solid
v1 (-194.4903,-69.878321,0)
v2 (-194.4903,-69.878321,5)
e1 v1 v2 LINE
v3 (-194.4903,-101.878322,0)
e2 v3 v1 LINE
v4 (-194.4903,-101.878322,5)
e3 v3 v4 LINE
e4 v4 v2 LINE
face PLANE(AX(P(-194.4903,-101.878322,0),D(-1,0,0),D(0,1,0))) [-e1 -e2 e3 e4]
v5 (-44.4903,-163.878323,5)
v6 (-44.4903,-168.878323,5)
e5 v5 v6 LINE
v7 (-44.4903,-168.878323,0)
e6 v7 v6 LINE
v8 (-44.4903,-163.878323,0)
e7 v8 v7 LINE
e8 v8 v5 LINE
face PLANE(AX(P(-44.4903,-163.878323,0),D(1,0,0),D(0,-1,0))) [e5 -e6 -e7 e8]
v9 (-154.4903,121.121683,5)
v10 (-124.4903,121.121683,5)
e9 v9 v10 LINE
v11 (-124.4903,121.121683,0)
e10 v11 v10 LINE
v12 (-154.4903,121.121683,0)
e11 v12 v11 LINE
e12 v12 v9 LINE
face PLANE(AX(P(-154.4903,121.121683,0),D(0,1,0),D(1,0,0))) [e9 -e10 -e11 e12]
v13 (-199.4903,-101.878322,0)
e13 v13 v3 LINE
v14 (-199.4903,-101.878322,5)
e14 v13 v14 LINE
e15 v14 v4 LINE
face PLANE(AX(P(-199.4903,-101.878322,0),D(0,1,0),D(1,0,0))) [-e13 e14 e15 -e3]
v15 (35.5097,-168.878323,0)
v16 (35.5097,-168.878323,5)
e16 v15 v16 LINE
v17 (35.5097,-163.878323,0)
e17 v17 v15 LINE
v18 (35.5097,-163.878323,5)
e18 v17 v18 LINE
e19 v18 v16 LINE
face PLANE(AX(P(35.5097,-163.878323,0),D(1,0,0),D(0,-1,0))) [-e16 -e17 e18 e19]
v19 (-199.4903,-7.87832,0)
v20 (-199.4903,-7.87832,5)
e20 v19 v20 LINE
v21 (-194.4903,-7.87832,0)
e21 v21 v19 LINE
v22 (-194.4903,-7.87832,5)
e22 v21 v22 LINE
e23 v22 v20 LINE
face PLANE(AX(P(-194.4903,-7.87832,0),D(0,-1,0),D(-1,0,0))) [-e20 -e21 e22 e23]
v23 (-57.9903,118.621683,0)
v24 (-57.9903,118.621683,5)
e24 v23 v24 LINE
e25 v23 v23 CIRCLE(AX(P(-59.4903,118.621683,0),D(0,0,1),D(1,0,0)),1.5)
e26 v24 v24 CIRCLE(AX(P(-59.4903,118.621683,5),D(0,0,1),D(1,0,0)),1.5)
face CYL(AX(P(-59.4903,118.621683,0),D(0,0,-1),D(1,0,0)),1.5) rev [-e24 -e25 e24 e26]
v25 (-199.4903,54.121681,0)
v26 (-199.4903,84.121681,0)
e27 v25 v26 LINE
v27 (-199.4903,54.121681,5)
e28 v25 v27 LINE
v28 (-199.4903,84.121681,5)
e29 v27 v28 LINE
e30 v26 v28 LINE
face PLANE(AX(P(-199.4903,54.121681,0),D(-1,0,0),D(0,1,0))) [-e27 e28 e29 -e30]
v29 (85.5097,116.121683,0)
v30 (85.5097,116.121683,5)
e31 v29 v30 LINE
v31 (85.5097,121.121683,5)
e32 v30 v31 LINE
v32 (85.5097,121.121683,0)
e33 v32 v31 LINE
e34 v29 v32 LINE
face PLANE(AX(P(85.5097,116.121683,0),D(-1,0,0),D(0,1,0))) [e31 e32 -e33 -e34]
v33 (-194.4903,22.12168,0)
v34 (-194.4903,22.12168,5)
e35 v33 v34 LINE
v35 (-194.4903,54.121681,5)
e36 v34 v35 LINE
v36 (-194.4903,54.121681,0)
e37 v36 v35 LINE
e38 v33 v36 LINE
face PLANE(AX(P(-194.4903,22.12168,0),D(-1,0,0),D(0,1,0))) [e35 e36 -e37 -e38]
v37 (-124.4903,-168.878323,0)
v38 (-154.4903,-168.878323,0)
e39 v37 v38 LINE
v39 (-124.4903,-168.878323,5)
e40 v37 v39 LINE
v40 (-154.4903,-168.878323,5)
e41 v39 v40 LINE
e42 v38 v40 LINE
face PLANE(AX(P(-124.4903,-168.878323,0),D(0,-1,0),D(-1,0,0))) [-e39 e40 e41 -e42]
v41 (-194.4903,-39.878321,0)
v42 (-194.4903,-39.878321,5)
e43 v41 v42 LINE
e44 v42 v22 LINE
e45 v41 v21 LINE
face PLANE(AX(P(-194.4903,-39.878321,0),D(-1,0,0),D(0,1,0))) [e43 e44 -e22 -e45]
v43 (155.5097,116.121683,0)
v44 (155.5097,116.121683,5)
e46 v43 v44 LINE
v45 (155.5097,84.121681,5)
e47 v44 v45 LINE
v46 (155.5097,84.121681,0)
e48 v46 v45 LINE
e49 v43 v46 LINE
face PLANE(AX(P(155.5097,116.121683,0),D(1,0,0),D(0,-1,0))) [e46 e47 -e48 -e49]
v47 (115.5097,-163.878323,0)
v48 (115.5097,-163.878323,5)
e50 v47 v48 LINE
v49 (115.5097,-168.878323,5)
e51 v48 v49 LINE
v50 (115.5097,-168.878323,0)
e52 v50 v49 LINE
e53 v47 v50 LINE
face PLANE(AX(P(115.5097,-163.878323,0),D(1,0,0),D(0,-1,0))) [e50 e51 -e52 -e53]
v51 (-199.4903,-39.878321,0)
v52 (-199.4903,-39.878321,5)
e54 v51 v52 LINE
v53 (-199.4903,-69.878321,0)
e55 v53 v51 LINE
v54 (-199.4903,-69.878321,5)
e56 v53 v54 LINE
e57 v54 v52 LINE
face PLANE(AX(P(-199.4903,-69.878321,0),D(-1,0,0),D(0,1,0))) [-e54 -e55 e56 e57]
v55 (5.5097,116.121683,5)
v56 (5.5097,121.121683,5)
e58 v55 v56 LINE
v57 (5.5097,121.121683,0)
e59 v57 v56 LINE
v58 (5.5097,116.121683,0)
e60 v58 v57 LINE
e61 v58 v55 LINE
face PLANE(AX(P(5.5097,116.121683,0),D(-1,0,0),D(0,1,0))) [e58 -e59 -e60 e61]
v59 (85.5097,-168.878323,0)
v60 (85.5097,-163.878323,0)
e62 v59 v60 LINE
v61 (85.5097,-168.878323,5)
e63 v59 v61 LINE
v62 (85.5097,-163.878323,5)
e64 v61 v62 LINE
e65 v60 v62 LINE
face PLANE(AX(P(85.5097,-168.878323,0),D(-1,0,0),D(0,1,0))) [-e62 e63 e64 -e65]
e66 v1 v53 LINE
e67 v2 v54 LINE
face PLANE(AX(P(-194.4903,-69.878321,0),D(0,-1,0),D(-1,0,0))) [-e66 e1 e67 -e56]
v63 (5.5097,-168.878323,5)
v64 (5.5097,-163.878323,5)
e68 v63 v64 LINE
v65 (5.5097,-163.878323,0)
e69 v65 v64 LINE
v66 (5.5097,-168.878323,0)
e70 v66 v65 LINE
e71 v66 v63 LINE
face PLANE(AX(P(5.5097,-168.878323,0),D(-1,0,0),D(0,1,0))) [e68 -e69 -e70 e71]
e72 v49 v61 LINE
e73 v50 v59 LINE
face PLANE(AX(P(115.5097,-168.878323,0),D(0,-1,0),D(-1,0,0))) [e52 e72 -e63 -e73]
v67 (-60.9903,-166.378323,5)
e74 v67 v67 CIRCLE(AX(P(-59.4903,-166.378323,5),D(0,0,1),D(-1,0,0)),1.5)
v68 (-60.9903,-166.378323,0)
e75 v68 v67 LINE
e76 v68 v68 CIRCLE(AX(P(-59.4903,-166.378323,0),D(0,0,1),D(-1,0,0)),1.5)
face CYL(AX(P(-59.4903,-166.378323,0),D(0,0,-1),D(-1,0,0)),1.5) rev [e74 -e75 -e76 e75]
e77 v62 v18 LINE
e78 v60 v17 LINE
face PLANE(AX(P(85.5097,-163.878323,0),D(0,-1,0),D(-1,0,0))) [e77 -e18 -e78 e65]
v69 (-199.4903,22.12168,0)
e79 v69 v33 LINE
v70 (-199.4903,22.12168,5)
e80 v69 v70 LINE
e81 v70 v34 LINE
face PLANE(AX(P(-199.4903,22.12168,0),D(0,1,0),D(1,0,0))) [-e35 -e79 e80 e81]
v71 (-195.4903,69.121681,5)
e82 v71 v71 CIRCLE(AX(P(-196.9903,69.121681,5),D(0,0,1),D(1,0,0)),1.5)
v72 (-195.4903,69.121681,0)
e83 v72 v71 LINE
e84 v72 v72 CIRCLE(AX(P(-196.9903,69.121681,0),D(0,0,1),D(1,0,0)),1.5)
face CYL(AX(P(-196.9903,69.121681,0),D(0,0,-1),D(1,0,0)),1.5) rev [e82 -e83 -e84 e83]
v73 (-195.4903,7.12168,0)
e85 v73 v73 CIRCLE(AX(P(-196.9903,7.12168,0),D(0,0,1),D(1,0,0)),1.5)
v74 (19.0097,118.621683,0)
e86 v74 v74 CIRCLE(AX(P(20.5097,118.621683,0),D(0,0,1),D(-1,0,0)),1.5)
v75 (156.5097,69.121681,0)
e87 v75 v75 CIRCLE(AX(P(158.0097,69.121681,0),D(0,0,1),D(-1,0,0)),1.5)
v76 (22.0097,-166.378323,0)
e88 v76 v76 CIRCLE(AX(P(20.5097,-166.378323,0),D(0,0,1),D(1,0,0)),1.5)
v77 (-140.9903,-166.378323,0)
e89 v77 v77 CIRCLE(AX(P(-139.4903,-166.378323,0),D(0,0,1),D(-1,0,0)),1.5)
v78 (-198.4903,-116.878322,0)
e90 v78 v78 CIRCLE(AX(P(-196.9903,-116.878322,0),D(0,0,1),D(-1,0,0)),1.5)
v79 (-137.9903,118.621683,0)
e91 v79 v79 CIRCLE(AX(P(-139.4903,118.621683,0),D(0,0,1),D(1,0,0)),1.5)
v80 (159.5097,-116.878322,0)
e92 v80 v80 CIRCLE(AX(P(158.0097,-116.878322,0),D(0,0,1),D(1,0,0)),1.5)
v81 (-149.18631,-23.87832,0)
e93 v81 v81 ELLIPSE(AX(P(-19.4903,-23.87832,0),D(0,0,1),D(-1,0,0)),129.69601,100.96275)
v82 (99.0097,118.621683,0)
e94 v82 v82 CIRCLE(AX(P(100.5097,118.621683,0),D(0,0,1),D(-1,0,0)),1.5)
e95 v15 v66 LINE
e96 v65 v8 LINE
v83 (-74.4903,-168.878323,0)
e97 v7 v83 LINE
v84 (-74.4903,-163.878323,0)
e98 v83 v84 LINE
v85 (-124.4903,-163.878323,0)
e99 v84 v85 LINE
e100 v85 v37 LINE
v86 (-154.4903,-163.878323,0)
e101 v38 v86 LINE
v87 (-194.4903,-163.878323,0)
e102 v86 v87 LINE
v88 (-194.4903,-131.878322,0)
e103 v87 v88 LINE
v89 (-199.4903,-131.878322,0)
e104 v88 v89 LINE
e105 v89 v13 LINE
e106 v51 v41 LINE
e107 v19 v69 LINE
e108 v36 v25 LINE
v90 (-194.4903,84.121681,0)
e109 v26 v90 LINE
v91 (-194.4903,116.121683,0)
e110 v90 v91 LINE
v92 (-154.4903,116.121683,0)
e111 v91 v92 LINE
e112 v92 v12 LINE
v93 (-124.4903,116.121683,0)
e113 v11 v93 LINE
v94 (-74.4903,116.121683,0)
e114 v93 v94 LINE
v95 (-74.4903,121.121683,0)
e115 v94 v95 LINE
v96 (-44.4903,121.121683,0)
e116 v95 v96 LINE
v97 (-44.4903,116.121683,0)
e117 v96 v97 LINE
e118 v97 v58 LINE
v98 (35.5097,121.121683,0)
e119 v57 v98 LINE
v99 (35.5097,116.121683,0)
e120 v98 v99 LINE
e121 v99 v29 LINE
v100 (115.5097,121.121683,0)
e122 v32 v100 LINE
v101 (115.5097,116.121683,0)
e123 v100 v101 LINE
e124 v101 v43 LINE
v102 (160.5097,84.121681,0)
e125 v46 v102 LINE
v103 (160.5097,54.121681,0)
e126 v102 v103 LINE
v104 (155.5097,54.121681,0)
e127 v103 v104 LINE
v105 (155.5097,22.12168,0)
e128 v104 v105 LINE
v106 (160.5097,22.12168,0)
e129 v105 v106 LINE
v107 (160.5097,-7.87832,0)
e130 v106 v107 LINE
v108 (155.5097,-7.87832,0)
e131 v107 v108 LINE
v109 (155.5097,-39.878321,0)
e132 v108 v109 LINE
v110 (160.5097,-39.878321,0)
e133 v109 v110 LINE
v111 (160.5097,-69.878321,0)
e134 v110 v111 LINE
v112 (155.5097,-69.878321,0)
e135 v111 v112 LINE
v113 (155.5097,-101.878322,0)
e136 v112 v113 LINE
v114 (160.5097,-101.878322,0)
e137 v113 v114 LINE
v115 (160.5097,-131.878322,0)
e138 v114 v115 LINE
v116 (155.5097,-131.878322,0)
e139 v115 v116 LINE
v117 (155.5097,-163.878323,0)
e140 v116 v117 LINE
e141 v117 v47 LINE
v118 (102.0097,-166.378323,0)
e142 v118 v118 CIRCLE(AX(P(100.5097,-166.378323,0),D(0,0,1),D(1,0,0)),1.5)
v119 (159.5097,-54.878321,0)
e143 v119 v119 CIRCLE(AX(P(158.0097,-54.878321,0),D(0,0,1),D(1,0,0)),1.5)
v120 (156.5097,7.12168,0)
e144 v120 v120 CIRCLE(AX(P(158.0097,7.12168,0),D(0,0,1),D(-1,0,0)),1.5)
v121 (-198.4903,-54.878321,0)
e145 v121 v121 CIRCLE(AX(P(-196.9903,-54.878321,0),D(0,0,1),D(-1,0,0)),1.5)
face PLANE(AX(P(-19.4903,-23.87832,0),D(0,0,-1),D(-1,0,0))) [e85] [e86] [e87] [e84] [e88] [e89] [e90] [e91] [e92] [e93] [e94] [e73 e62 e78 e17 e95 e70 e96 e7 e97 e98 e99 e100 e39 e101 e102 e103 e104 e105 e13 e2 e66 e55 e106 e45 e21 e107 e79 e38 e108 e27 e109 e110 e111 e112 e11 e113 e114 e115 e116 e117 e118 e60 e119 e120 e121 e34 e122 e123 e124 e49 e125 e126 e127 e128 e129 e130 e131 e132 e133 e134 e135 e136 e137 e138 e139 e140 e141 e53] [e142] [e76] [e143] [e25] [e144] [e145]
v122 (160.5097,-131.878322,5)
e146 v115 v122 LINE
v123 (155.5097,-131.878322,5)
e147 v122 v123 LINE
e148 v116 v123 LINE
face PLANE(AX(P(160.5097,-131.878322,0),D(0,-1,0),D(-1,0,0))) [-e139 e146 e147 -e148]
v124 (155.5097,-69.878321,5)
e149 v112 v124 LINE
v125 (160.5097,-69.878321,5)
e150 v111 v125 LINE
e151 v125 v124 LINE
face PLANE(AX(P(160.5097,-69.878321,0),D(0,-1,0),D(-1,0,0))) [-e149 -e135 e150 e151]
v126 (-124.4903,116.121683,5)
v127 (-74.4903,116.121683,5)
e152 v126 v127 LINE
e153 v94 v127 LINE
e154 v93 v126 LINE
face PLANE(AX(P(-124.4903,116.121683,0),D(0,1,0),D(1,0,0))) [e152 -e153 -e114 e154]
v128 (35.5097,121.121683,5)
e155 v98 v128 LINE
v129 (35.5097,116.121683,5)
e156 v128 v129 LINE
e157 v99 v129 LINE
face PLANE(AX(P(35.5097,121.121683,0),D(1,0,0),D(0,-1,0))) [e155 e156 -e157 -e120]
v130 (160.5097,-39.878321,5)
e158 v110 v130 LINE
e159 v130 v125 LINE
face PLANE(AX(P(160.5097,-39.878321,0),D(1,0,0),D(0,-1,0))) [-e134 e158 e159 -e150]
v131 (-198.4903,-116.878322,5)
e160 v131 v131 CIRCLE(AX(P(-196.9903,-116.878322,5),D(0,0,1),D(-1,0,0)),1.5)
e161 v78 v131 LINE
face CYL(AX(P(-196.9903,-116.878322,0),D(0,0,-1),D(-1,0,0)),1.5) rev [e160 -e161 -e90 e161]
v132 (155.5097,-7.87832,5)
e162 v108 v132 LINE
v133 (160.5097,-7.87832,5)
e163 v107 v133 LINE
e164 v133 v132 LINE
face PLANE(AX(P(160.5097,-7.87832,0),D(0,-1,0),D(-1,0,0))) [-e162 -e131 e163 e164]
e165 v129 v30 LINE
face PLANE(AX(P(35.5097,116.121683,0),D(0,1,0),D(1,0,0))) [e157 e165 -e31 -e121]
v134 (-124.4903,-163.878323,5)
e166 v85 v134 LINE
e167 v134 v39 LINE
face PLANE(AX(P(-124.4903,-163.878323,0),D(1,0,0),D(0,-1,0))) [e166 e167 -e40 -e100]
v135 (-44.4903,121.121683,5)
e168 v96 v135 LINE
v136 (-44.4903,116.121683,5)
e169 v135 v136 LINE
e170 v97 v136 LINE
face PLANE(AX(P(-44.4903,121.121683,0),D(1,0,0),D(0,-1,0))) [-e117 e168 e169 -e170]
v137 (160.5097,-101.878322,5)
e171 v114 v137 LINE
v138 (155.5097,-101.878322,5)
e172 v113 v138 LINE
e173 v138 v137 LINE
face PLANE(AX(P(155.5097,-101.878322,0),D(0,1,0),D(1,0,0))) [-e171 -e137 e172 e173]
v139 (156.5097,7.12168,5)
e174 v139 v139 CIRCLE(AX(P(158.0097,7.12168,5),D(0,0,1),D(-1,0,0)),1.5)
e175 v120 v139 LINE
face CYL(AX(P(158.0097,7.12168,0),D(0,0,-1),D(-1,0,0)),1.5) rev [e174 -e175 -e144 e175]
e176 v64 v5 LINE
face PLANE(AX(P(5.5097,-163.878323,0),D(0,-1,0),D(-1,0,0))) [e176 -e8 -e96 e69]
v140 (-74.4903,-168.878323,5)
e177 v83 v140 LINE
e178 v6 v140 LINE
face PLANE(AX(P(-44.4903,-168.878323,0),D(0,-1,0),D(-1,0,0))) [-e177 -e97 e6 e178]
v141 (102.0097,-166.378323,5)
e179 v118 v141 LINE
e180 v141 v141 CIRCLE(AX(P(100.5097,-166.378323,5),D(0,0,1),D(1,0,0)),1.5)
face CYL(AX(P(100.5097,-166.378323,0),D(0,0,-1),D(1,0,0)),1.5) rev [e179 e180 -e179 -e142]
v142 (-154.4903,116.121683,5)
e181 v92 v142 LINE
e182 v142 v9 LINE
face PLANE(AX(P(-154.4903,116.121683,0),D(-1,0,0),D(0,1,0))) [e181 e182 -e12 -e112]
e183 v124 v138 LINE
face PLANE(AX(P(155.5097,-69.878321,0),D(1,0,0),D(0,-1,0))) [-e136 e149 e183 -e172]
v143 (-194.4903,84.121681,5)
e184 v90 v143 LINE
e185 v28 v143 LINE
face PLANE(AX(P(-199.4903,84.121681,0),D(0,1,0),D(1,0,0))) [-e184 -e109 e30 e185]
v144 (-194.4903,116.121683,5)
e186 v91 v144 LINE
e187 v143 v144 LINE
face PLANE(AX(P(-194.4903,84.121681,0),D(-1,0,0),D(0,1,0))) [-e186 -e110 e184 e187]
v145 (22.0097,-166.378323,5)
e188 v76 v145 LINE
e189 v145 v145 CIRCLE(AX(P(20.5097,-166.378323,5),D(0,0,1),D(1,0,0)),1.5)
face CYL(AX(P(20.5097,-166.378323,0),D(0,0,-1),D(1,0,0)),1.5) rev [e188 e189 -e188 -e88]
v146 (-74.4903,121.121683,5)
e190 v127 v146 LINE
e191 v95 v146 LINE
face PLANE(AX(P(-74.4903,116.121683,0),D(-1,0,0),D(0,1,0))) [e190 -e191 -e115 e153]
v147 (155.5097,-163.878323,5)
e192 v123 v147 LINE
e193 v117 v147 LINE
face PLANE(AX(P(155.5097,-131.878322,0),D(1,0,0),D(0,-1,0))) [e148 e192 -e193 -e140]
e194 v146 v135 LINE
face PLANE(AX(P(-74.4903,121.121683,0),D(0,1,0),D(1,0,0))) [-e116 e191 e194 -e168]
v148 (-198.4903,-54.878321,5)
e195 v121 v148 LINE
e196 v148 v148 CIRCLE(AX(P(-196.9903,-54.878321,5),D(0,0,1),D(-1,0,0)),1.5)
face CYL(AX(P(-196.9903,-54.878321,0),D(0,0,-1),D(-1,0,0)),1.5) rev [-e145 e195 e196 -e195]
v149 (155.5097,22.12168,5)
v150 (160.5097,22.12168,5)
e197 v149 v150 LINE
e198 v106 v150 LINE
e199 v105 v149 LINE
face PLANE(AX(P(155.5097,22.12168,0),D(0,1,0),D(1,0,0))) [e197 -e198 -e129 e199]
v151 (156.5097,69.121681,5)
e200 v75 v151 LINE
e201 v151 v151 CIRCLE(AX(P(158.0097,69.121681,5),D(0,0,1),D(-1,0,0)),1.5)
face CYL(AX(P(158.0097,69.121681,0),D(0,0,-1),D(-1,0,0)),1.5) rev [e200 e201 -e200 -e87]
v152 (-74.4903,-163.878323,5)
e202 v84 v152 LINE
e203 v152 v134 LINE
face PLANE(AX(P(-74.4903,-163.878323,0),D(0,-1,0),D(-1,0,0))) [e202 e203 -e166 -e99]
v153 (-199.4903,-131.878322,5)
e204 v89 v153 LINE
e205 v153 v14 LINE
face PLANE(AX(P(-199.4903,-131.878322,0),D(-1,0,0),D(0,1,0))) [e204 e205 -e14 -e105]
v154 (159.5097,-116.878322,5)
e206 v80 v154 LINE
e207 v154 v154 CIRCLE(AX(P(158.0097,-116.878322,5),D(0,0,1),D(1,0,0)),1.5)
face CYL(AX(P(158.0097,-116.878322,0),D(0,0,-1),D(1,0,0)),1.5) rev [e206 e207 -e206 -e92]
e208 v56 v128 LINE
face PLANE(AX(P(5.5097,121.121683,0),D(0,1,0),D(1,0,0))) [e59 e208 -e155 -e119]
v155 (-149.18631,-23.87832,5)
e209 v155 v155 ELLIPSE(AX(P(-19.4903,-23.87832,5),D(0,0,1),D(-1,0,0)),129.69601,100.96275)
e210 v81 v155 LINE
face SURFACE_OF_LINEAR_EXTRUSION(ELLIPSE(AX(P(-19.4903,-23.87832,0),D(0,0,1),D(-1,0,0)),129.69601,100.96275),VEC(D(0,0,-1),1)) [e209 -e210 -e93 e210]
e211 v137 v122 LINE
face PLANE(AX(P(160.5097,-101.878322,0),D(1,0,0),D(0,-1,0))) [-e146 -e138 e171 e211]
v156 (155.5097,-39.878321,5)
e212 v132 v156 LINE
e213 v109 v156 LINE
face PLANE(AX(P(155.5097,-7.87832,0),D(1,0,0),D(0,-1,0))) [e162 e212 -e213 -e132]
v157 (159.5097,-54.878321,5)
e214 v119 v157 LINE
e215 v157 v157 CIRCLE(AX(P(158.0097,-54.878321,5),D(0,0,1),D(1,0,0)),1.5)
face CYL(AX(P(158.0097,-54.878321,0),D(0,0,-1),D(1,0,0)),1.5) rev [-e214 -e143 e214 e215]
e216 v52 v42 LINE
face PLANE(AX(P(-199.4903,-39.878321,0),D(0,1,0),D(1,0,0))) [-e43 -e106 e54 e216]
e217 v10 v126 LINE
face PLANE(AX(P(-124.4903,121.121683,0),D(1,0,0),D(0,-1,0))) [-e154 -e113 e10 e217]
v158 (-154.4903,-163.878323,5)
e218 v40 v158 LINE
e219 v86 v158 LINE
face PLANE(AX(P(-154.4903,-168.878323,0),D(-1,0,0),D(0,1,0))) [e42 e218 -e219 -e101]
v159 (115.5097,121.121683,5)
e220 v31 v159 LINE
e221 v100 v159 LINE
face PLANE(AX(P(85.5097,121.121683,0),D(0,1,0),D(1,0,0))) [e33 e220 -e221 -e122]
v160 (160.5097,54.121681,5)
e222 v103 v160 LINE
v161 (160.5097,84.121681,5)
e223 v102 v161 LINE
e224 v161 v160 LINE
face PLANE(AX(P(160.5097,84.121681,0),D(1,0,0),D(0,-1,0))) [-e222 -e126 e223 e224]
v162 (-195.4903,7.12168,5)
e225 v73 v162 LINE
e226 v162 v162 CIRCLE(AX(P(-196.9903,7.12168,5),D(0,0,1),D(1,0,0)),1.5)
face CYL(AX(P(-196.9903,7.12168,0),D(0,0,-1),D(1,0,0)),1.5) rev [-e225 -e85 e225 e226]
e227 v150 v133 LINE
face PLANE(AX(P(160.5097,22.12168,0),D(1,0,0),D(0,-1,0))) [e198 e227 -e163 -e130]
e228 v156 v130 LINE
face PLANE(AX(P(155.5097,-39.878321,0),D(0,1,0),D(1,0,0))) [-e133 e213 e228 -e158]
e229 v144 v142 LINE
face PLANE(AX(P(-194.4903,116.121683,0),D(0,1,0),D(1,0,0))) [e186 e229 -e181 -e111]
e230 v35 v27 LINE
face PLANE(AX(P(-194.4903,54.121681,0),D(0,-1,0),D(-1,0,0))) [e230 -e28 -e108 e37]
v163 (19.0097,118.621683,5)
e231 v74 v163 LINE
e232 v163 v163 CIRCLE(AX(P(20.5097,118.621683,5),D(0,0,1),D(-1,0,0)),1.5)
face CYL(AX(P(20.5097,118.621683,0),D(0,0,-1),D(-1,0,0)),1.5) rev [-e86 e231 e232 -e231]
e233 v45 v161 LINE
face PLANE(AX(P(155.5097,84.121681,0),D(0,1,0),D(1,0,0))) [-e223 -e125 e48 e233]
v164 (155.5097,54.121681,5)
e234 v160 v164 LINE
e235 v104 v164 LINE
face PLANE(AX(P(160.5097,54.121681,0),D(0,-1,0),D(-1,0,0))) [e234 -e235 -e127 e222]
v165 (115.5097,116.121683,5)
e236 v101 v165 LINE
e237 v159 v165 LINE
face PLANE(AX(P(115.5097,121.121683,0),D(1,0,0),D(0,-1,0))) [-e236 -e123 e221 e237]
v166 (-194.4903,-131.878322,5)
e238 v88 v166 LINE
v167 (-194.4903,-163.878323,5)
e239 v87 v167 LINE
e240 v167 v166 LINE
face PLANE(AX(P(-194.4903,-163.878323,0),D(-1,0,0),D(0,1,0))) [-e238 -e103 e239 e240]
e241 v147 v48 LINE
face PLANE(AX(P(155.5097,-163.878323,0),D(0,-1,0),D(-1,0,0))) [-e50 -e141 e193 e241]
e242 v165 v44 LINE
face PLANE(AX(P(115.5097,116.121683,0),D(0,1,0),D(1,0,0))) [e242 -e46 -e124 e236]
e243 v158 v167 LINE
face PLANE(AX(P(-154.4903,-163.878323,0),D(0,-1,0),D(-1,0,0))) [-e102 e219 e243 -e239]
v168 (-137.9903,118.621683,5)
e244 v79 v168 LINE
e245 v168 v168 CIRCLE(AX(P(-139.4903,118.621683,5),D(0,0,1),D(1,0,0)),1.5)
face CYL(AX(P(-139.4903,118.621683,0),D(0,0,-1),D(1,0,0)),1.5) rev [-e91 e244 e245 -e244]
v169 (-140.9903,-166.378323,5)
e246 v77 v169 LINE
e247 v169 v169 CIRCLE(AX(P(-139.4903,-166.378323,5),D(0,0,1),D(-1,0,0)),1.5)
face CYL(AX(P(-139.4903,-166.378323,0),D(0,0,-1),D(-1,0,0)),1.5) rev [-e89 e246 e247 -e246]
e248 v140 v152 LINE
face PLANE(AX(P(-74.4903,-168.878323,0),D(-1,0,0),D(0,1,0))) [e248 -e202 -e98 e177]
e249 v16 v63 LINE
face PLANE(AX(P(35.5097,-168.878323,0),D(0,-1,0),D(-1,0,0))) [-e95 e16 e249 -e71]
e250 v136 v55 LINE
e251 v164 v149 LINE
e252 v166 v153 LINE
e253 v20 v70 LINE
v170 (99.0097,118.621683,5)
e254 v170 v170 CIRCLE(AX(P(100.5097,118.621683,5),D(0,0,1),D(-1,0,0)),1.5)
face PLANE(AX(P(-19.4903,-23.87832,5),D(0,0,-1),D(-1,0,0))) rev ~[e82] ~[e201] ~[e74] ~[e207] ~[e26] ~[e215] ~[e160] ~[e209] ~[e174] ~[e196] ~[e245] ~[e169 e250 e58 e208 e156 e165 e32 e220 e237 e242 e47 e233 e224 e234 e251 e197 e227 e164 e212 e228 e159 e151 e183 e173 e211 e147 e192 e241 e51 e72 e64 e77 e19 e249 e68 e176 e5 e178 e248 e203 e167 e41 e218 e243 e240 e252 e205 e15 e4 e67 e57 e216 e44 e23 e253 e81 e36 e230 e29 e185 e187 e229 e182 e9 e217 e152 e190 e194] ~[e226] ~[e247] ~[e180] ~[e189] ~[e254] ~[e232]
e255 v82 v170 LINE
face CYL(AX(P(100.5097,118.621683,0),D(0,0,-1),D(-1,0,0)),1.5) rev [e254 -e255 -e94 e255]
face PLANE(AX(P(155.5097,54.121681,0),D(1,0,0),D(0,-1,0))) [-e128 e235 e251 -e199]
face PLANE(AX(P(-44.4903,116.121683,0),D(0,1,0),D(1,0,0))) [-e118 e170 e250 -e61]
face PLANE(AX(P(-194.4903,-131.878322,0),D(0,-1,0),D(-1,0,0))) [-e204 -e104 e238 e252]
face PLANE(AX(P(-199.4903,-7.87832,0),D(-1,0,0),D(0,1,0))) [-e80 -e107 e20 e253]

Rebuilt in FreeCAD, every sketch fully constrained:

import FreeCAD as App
import Part
import Sketcher

V = App.Vector

doc = App.newDocument("Part")
body = doc.addObject("PartDesign::Body", "Body")

sketch1 = body.newObject("Sketcher::SketchObject", "Sketch")
sketch1.AttachmentSupport = (doc.getObject("XY_Plane"), [""])
sketch1.MapMode = "FlatFace"
sketch1.addGeometry(Part.LineSegment(V(115.5097, -163.878323, 0), V(155.5097, -163.878323, 0)), False)
sketch1.addGeometry(Part.LineSegment(V(155.5097, -163.878323, 0), V(155.5097, -131.878322, 0)), False)
sketch1.addGeometry(Part.LineSegment(V(155.5097, -131.878322, 0), V(160.5097, -131.878322, 0)), False)
sketch1.addGeometry(Part.LineSegment(V(160.5097, -131.878322, 0), V(160.5097, -101.878322, 0)), False)
sketch1.addGeometry(Part.LineSegment(V(160.5097, -101.878322, 0), V(155.5097, -101.878322, 0)), False)
sketch1.addGeometry(Part.LineSegment(V(155.5097, -101.878322, 0), V(155.5097, -69.878321, 0)), False)
sketch1.addGeometry(Part.LineSegment(V(155.5097, -69.878321, 0), V(160.5097, -69.878321, 0)), False)
sketch1.addGeometry(Part.LineSegment(V(160.5097, -69.878321, 0), V(160.5097, -39.878321, 0)), False)
sketch1.addGeometry(Part.LineSegment(V(160.5097, -39.878321, 0), V(155.5097, -39.878321, 0)), False)
sketch1.addGeometry(Part.LineSegment(V(155.5097, -39.878321, 0), V(155.5097, -7.87832, 0)), False)
sketch1.addGeometry(Part.LineSegment(V(155.5097, -7.87832, 0), V(160.5097, -7.87832, 0)), False)
sketch1.addGeometry(Part.LineSegment(V(160.5097, -7.87832, 0), V(160.5097, 22.12168, 0)), False)
sketch1.addGeometry(Part.LineSegment(V(160.5097, 22.12168, 0), V(155.5097, 22.12168, 0)), False)
sketch1.addGeometry(Part.LineSegment(V(155.5097, 22.12168, 0), V(155.5097, 54.121681, 0)), False)
sketch1.addGeometry(Part.LineSegment(V(155.5097, 54.121681, 0), V(160.5097, 54.121681, 0)), False)
sketch1.addGeometry(Part.LineSegment(V(160.5097, 54.121681, 0), V(160.5097, 84.121681, 0)), False)
sketch1.addGeometry(Part.LineSegment(V(160.5097, 84.121681, 0), V(155.5097, 84.121681, 0)), False)
sketch1.addGeometry(Part.LineSegment(V(155.5097, 84.121681, 0), V(155.5097, 116.121683, 0)), False)
sketch1.addGeometry(Part.LineSegment(V(155.5097, 116.121683, 0), V(115.5097, 116.121683, 0)), False)
sketch1.addGeometry(Part.LineSegment(V(115.5097, 116.121683, 0), V(115.5097, 121.121683, 0)), False)
sketch1.addGeometry(Part.LineSegment(V(115.5097, 121.121683, 0), V(85.5097, 121.121683, 0)), False)
sketch1.addGeometry(Part.LineSegment(V(85.5097, 121.121683, 0), V(85.5097, 116.121683, 0)), False)
sketch1.addGeometry(Part.LineSegment(V(85.5097, 116.121683, 0), V(35.5097, 116.121683, 0)), False)
sketch1.addGeometry(Part.LineSegment(V(35.5097, 116.121683, 0), V(35.5097, 121.121683, 0)), False)
sketch1.addGeometry(Part.LineSegment(V(35.5097, 121.121683, 0), V(5.5097, 121.121683, 0)), False)
sketch1.addGeometry(Part.LineSegment(V(5.5097, 121.121683, 0), V(5.5097, 116.121683, 0)), False)
sketch1.addGeometry(Part.LineSegment(V(5.5097, 116.121683, 0), V(-44.4903, 116.121683, 0)), False)
sketch1.addGeometry(Part.LineSegment(V(-44.4903, 116.121683, 0), V(-44.4903, 121.121683, 0)), False)
sketch1.addGeometry(Part.LineSegment(V(-44.4903, 121.121683, 0), V(-74.4903, 121.121683, 0)), False)
sketch1.addGeometry(Part.LineSegment(V(-74.4903, 121.121683, 0), V(-74.4903, 116.121683, 0)), False)
sketch1.addGeometry(Part.LineSegment(V(-74.4903, 116.121683, 0), V(-124.4903, 116.121683, 0)), False)
sketch1.addGeometry(Part.LineSegment(V(-124.4903, 116.121683, 0), V(-124.4903, 121.121683, 0)), False)
sketch1.addGeometry(Part.LineSegment(V(-124.4903, 121.121683, 0), V(-154.4903, 121.121683, 0)), False)
sketch1.addGeometry(Part.LineSegment(V(-154.4903, 121.121683, 0), V(-154.4903, 116.121683, 0)), False)
sketch1.addGeometry(Part.LineSegment(V(-154.4903, 116.121683, 0), V(-194.4903, 116.121683, 0)), False)
sketch1.addGeometry(Part.LineSegment(V(-194.4903, 116.121683, 0), V(-194.4903, 84.121681, 0)), False)
sketch1.addGeometry(Part.LineSegment(V(-194.4903, 84.121681, 0), V(-199.4903, 84.121681, 0)), False)
sketch1.addGeometry(Part.LineSegment(V(-199.4903, 84.121681, 0), V(-199.4903, 54.121681, 0)), False)
sketch1.addGeometry(Part.LineSegment(V(-199.4903, 54.121681, 0), V(-194.4903, 54.121681, 0)), False)
sketch1.addGeometry(Part.LineSegment(V(-194.4903, 54.121681, 0), V(-194.4903, 22.12168, 0)), False)
sketch1.addGeometry(Part.LineSegment(V(-194.4903, 22.12168, 0), V(-199.4903, 22.12168, 0)), False)
sketch1.addGeometry(Part.LineSegment(V(-199.4903, 22.12168, 0), V(-199.4903, -7.87832, 0)), False)
sketch1.addGeometry(Part.LineSegment(V(-199.4903, -7.87832, 0), V(-194.4903, -7.87832, 0)), False)
sketch1.addGeometry(Part.LineSegment(V(-194.4903, -7.87832, 0), V(-194.4903, -39.878321, 0)), False)
sketch1.addGeometry(Part.LineSegment(V(-194.4903, -39.878321, 0), V(-199.4903, -39.878321, 0)), False)
sketch1.addGeometry(Part.LineSegment(V(-199.4903, -39.878321, 0), V(-199.4903, -69.878321, 0)), False)
sketch1.addGeometry(Part.LineSegment(V(-199.4903, -69.878321, 0), V(-194.4903, -69.878321, 0)), False)
sketch1.addGeometry(Part.LineSegment(V(-194.4903, -69.878321, 0), V(-194.4903, -101.878322, 0)), False)
sketch1.addGeometry(Part.LineSegment(V(-194.4903, -101.878322, 0), V(-199.4903, -101.878322, 0)), False)
sketch1.addGeometry(Part.LineSegment(V(-199.4903, -101.878322, 0), V(-199.4903, -131.878322, 0)), False)
sketch1.addGeometry(Part.LineSegment(V(-199.4903, -131.878322, 0), V(-194.4903, -131.878322, 0)), False)
sketch1.addGeometry(Part.LineSegment(V(-194.4903, -131.878322, 0), V(-194.4903, -163.878323, 0)), False)
sketch1.addGeometry(Part.LineSegment(V(-194.4903, -163.878323, 0), V(-154.4903, -163.878323, 0)), False)
sketch1.addGeometry(Part.LineSegment(V(-154.4903, -163.878323, 0), V(-154.4903, -168.878323, 0)), False)
sketch1.addGeometry(Part.LineSegment(V(-154.4903, -168.878323, 0), V(-124.4903, -168.878323, 0)), False)
sketch1.addGeometry(Part.LineSegment(V(-124.4903, -168.878323, 0), V(-124.4903, -163.878323, 0)), False)
sketch1.addGeometry(Part.LineSegment(V(-124.4903, -163.878323, 0), V(-74.4903, -163.878323, 0)), False)
sketch1.addGeometry(Part.LineSegment(V(-74.4903, -163.878323, 0), V(-74.4903, -168.878323, 0)), False)
sketch1.addGeometry(Part.LineSegment(V(-74.4903, -168.878323, 0), V(-44.4903, -168.878323, 0)), False)
sketch1.addGeometry(Part.LineSegment(V(-44.4903, -168.878323, 0), V(-44.4903, -163.878323, 0)), False)
sketch1.addGeometry(Part.LineSegment(V(-44.4903, -163.878323, 0), V(5.5097, -163.878323, 0)), False)
sketch1.addGeometry(Part.LineSegment(V(5.5097, -163.878323, 0), V(5.5097, -168.878323, 0)), False)
sketch1.addGeometry(Part.LineSegment(V(5.5097, -168.878323, 0), V(35.5097, -168.878323, 0)), False)
sketch1.addGeometry(Part.LineSegment(V(35.5097, -168.878323, 0), V(35.5097, -163.878323, 0)), False)
sketch1.addGeometry(Part.LineSegment(V(35.5097, -163.878323, 0), V(85.5097, -163.878323, 0)), False)
sketch1.addGeometry(Part.LineSegment(V(85.5097, -163.878323, 0), V(85.5097, -168.878323, 0)), False)
sketch1.addGeometry(Part.LineSegment(V(85.5097, -168.878323, 0), V(115.5097, -168.878323, 0)), False)
sketch1.addGeometry(Part.LineSegment(V(115.5097, -168.878323, 0), V(115.5097, -163.878323, 0)), False)
sketch1.addGeometry(Part.Circle(V(100.5097, -166.378323, 0), V(0, 0, 1), 1.5), False)
sketch1.addGeometry(Part.Circle(V(158.0097, -116.878322, 0), V(0, 0, 1), 1.5), False)
sketch1.addGeometry(Part.Circle(V(20.5097, -166.378323, 0), V(0, 0, 1), 1.5), False)
sketch1.addGeometry(Part.Circle(V(158.0097, -54.878321, 0), V(0, 0, 1), 1.5), False)
sketch1.addGeometry(Part.Circle(V(-59.4903, -166.378323, 0), V(0, 0, 1), 1.5), False)
sketch1.addGeometry(Part.Circle(V(-139.4903, -166.378323, 0), V(0, 0, 1), 1.5), False)
sketch1.addGeometry(Part.Circle(V(-196.9903, -116.878322, 0), V(0, 0, 1), 1.5), False)
sketch1.addGeometry(Part.Circle(V(-196.9903, -54.878321, 0), V(0, 0, 1), 1.5), False)
sketch1.addGeometry(Part.Circle(V(158.0097, 7.12168, 0), V(0, 0, 1), 1.5), False)
sketch1.addGeometry(Part.Circle(V(158.0097, 69.121681, 0), V(0, 0, 1), 1.5), False)
sketch1.addGeometry(Part.Circle(V(100.5097, 118.621683, 0), V(0, 0, 1), 1.5), False)
sketch1.addGeometry(Part.Circle(V(20.5097, 118.621683, 0), V(0, 0, 1), 1.5), False)
sketch1.addGeometry(Part.Ellipse(V(-149.18631, -23.87832, 0), V(-19.4903, -124.84107, 0), V(-19.4903, -23.87832, 0)), False)
sketch1.addGeometry(Part.Circle(V(-196.9903, 7.12168, 0), V(0, 0, 1), 1.5), False)
sketch1.addGeometry(Part.Circle(V(-59.4903, 118.621683, 0), V(0, 0, 1), 1.5), False)
sketch1.addGeometry(Part.Circle(V(-196.9903, 69.121681, 0), V(0, 0, 1), 1.5), False)
sketch1.addGeometry(Part.Circle(V(-139.4903, 118.621683, 0), V(0, 0, 1), 1.5), False)
sketch1.addConstraint(Sketcher.Constraint("Block", 80))
sketch1.addConstraint(Sketcher.Constraint("Coincident", 0, 2, 1, 1))
sketch1.addConstraint(Sketcher.Constraint("Coincident", 1, 2, 2, 1))
sketch1.addConstraint(Sketcher.Constraint("Coincident", 2, 2, 3, 1))
sketch1.addConstraint(Sketcher.Constraint("Coincident", 3, 2, 4, 1))
sketch1.addConstraint(Sketcher.Constraint("Coincident", 4, 2, 5, 1))
sketch1.addConstraint(Sketcher.Constraint("Coincident", 5, 2, 6, 1))
sketch1.addConstraint(Sketcher.Constraint("Coincident", 6, 2, 7, 1))
sketch1.addConstraint(Sketcher.Constraint("Coincident", 7, 2, 8, 1))
sketch1.addConstraint(Sketcher.Constraint("Coincident", 8, 2, 9, 1))
sketch1.addConstraint(Sketcher.Constraint("Coincident", 9, 2, 10, 1))
sketch1.addConstraint(Sketcher.Constraint("Coincident", 10, 2, 11, 1))
sketch1.addConstraint(Sketcher.Constraint("Coincident", 11, 2, 12, 1))
sketch1.addConstraint(Sketcher.Constraint("Coincident", 12, 2, 13, 1))
sketch1.addConstraint(Sketcher.Constraint("Coincident", 13, 2, 14, 1))
sketch1.addConstraint(Sketcher.Constraint("Coincident", 14, 2, 15, 1))
sketch1.addConstraint(Sketcher.Constraint("Coincident", 15, 2, 16, 1))
sketch1.addConstraint(Sketcher.Constraint("Coincident", 16, 2, 17, 1))
sketch1.addConstraint(Sketcher.Constraint("Coincident", 17, 2, 18, 1))
sketch1.addConstraint(Sketcher.Constraint("Coincident", 18, 2, 19, 1))
sketch1.addConstraint(Sketcher.Constraint("Coincident", 19, 2, 20, 1))
sketch1.addConstraint(Sketcher.Constraint("Coincident", 20, 2, 21, 1))
sketch1.addConstraint(Sketcher.Constraint("Coincident", 21, 2, 22, 1))
sketch1.addConstraint(Sketcher.Constraint("Coincident", 22, 2, 23, 1))
sketch1.addConstraint(Sketcher.Constraint("Coincident", 23, 2, 24, 1))
sketch1.addConstraint(Sketcher.Constraint("Coincident", 24, 2, 25, 1))
sketch1.addConstraint(Sketcher.Constraint("Coincident", 25, 2, 26, 1))
sketch1.addConstraint(Sketcher.Constraint("Coincident", 26, 2, 27, 1))
sketch1.addConstraint(Sketcher.Constraint("Coincident", 27, 2, 28, 1))
sketch1.addConstraint(Sketcher.Constraint("Coincident", 28, 2, 29, 1))
sketch1.addConstraint(Sketcher.Constraint("Coincident", 29, 2, 30, 1))
sketch1.addConstraint(Sketcher.Constraint("Coincident", 30, 2, 31, 1))
sketch1.addConstraint(Sketcher.Constraint("Coincident", 31, 2, 32, 1))
sketch1.addConstraint(Sketcher.Constraint("Coincident", 32, 2, 33, 1))
sketch1.addConstraint(Sketcher.Constraint("Coincident", 33, 2, 34, 1))
sketch1.addConstraint(Sketcher.Constraint("Coincident", 34, 2, 35, 1))
sketch1.addConstraint(Sketcher.Constraint("Coincident", 35, 2, 36, 1))
sketch1.addConstraint(Sketcher.Constraint("Coincident", 36, 2, 37, 1))
sketch1.addConstraint(Sketcher.Constraint("Coincident", 37, 2, 38, 1))
sketch1.addConstraint(Sketcher.Constraint("Coincident", 38, 2, 39, 1))
sketch1.addConstraint(Sketcher.Constraint("Coincident", 39, 2, 40, 1))
sketch1.addConstraint(Sketcher.Constraint("Coincident", 40, 2, 41, 1))
sketch1.addConstraint(Sketcher.Constraint("Coincident", 41, 2, 42, 1))
sketch1.addConstraint(Sketcher.Constraint("Coincident", 42, 2, 43, 1))
sketch1.addConstraint(Sketcher.Constraint("Coincident", 43, 2, 44, 1))
sketch1.addConstraint(Sketcher.Constraint("Coincident", 44, 2, 45, 1))
sketch1.addConstraint(Sketcher.Constraint("Coincident", 45, 2, 46, 1))
sketch1.addConstraint(Sketcher.Constraint("Coincident", 46, 2, 47, 1))
sketch1.addConstraint(Sketcher.Constraint("Coincident", 47, 2, 48, 1))
sketch1.addConstraint(Sketcher.Constraint("Coincident", 48, 2, 49, 1))
sketch1.addConstraint(Sketcher.Constraint("Coincident", 49, 2, 50, 1))
sketch1.addConstraint(Sketcher.Constraint("Coincident", 50, 2, 51, 1))
sketch1.addConstraint(Sketcher.Constraint("Coincident", 51, 2, 52, 1))
sketch1.addConstraint(Sketcher.Constraint("Coincident", 52, 2, 53, 1))
sketch1.addConstraint(Sketcher.Constraint("Coincident", 53, 2, 54, 1))
sketch1.addConstraint(Sketcher.Constraint("Coincident", 54, 2, 55, 1))
sketch1.addConstraint(Sketcher.Constraint("Coincident", 55, 2, 56, 1))
sketch1.addConstraint(Sketcher.Constraint("Coincident", 56, 2, 57, 1))
sketch1.addConstraint(Sketcher.Constraint("Coincident", 57, 2, 58, 1))
sketch1.addConstraint(Sketcher.Constraint("Coincident", 58, 2, 59, 1))
sketch1.addConstraint(Sketcher.Constraint("Coincident", 59, 2, 60, 1))
sketch1.addConstraint(Sketcher.Constraint("Coincident", 60, 2, 61, 1))
sketch1.addConstraint(Sketcher.Constraint("Coincident", 61, 2, 62, 1))
sketch1.addConstraint(Sketcher.Constraint("Coincident", 62, 2, 63, 1))
sketch1.addConstraint(Sketcher.Constraint("Coincident", 63, 2, 64, 1))
sketch1.addConstraint(Sketcher.Constraint("Coincident", 64, 2, 65, 1))
sketch1.addConstraint(Sketcher.Constraint("Coincident", 65, 2, 66, 1))
sketch1.addConstraint(Sketcher.Constraint("Coincident", 66, 2, 67, 1))
sketch1.addConstraint(Sketcher.Constraint("Coincident", 67, 2, 0, 1))
sketch1.addConstraint(Sketcher.Constraint("Horizontal", 0))
sketch1.addConstraint(Sketcher.Constraint("Vertical", 1))
sketch1.addConstraint(Sketcher.Constraint("Horizontal", 2))
sketch1.addConstraint(Sketcher.Constraint("Vertical", 3))
sketch1.addConstraint(Sketcher.Constraint("Horizontal", 4))
sketch1.addConstraint(Sketcher.Constraint("Vertical", 5))
sketch1.addConstraint(Sketcher.Constraint("Horizontal", 6))
sketch1.addConstraint(Sketcher.Constraint("Vertical", 7))
sketch1.addConstraint(Sketcher.Constraint("Horizontal", 8))
sketch1.addConstraint(Sketcher.Constraint("Vertical", 9))
sketch1.addConstraint(Sketcher.Constraint("Horizontal", 10))
sketch1.addConstraint(Sketcher.Constraint("Vertical", 11))
sketch1.addConstraint(Sketcher.Constraint("Horizontal", 12))
sketch1.addConstraint(Sketcher.Constraint("Vertical", 13))
sketch1.addConstraint(Sketcher.Constraint("Horizontal", 14))
sketch1.addConstraint(Sketcher.Constraint("Vertical", 15))
sketch1.addConstraint(Sketcher.Constraint("Horizontal", 16))
sketch1.addConstraint(Sketcher.Constraint("Vertical", 17))
sketch1.addConstraint(Sketcher.Constraint("Horizontal", 18))
sketch1.addConstraint(Sketcher.Constraint("Vertical", 19))
sketch1.addConstraint(Sketcher.Constraint("Horizontal", 20))
sketch1.addConstraint(Sketcher.Constraint("Vertical", 21))
sketch1.addConstraint(Sketcher.Constraint("Horizontal", 22))
sketch1.addConstraint(Sketcher.Constraint("Vertical", 23))
sketch1.addConstraint(Sketcher.Constraint("Horizontal", 24))
sketch1.addConstraint(Sketcher.Constraint("Vertical", 25))
sketch1.addConstraint(Sketcher.Constraint("Horizontal", 26))
sketch1.addConstraint(Sketcher.Constraint("Vertical", 27))
sketch1.addConstraint(Sketcher.Constraint("Horizontal", 28))
sketch1.addConstraint(Sketcher.Constraint("Vertical", 29))
sketch1.addConstraint(Sketcher.Constraint("Horizontal", 30))
sketch1.addConstraint(Sketcher.Constraint("Vertical", 31))
sketch1.addConstraint(Sketcher.Constraint("Horizontal", 32))
sketch1.addConstraint(Sketcher.Constraint("Vertical", 33))
sketch1.addConstraint(Sketcher.Constraint("Horizontal", 34))
sketch1.addConstraint(Sketcher.Constraint("Vertical", 35))
sketch1.addConstraint(Sketcher.Constraint("Horizontal", 36))
sketch1.addConstraint(Sketcher.Constraint("Vertical", 37))
sketch1.addConstraint(Sketcher.Constraint("Horizontal", 38))
sketch1.addConstraint(Sketcher.Constraint("Vertical", 39))
sketch1.addConstraint(Sketcher.Constraint("Horizontal", 40))
sketch1.addConstraint(Sketcher.Constraint("Vertical", 41))
sketch1.addConstraint(Sketcher.Constraint("Horizontal", 42))
sketch1.addConstraint(Sketcher.Constraint("Vertical", 43))
sketch1.addConstraint(Sketcher.Constraint("Horizontal", 44))
sketch1.addConstraint(Sketcher.Constraint("Vertical", 45))
sketch1.addConstraint(Sketcher.Constraint("Horizontal", 46))
sketch1.addConstraint(Sketcher.Constraint("Vertical", 47))
sketch1.addConstraint(Sketcher.Constraint("Horizontal", 48))
sketch1.addConstraint(Sketcher.Constraint("Vertical", 49))
sketch1.addConstraint(Sketcher.Constraint("Horizontal", 50))
sketch1.addConstraint(Sketcher.Constraint("Vertical", 51))
sketch1.addConstraint(Sketcher.Constraint("Horizontal", 52))
sketch1.addConstraint(Sketcher.Constraint("Vertical", 53))
sketch1.addConstraint(Sketcher.Constraint("Horizontal", 54))
sketch1.addConstraint(Sketcher.Constraint("Vertical", 55))
sketch1.addConstraint(Sketcher.Constraint("Horizontal", 56))
sketch1.addConstraint(Sketcher.Constraint("Vertical", 57))
sketch1.addConstraint(Sketcher.Constraint("Horizontal", 58))
sketch1.addConstraint(Sketcher.Constraint("Vertical", 59))
sketch1.addConstraint(Sketcher.Constraint("Horizontal", 60))
sketch1.addConstraint(Sketcher.Constraint("Vertical", 61))
sketch1.addConstraint(Sketcher.Constraint("Horizontal", 62))
sketch1.addConstraint(Sketcher.Constraint("Vertical", 63))
sketch1.addConstraint(Sketcher.Constraint("Horizontal", 64))
sketch1.addConstraint(Sketcher.Constraint("Vertical", 65))
sketch1.addConstraint(Sketcher.Constraint("Horizontal", 66))
sketch1.addConstraint(Sketcher.Constraint("Vertical", 67))
sketch1.addConstraint(Sketcher.Constraint("Equal", 68, 69))
sketch1.addConstraint(Sketcher.Constraint("Equal", 69, 70))
sketch1.addConstraint(Sketcher.Constraint("Equal", 70, 71))
sketch1.addConstraint(Sketcher.Constraint("Equal", 71, 72))
sketch1.addConstraint(Sketcher.Constraint("Equal", 72, 73))
sketch1.addConstraint(Sketcher.Constraint("Equal", 73, 74))
sketch1.addConstraint(Sketcher.Constraint("Equal", 74, 75))
sketch1.addConstraint(Sketcher.Constraint("Equal", 75, 76))
sketch1.addConstraint(Sketcher.Constraint("Equal", 76, 77))
sketch1.addConstraint(Sketcher.Constraint("Equal", 77, 78))
sketch1.addConstraint(Sketcher.Constraint("Equal", 78, 79))
sketch1.addConstraint(Sketcher.Constraint("Equal", 79, 81))
sketch1.addConstraint(Sketcher.Constraint("Equal", 81, 82))
sketch1.addConstraint(Sketcher.Constraint("Equal", 82, 83))
sketch1.addConstraint(Sketcher.Constraint("Equal", 83, 84))
sketch1.addConstraint(Sketcher.Constraint("Horizontal", 68, 3, 70, 3))
sketch1.addConstraint(Sketcher.Constraint("Horizontal", 70, 3, 72, 3))
sketch1.addConstraint(Sketcher.Constraint("Horizontal", 72, 3, 73, 3))
sketch1.addConstraint(Sketcher.Constraint("Horizontal", 69, 3, 74, 3))
sketch1.addConstraint(Sketcher.Constraint("Horizontal", 71, 3, 75, 3))
sketch1.addConstraint(Sketcher.Constraint("Horizontal", 78, 3, 79, 3))
sketch1.addConstraint(Sketcher.Constraint("Horizontal", 76, 3, 81, 3))
sketch1.addConstraint(Sketcher.Constraint("Horizontal", 79, 3, 82, 3))
sketch1.addConstraint(Sketcher.Constraint("Horizontal", 77, 3, 83, 3))
sketch1.addConstraint(Sketcher.Constraint("Horizontal", 82, 3, 84, 3))
sketch1.addConstraint(Sketcher.Constraint("Horizontal", 18, 2, 21, 2))
sketch1.addConstraint(Sketcher.Constraint("Horizontal", 20, 2, 23, 2))
sketch1.addConstraint(Sketcher.Constraint("Horizontal", 22, 2, 25, 2))
sketch1.addConstraint(Sketcher.Constraint("Horizontal", 24, 2, 27, 2))
sketch1.addConstraint(Sketcher.Constraint("Horizontal", 26, 2, 29, 2))
sketch1.addConstraint(Sketcher.Constraint("Horizontal", 28, 2, 31, 2))
sketch1.addConstraint(Sketcher.Constraint("Horizontal", 30, 2, 33, 2))
sketch1.addConstraint(Sketcher.Constraint("Horizontal", 16, 2, 35, 2))
sketch1.addConstraint(Sketcher.Constraint("Horizontal", 14, 2, 37, 2))
sketch1.addConstraint(Sketcher.Constraint("Horizontal", 12, 2, 39, 2))
sketch1.addConstraint(Sketcher.Constraint("Horizontal", 10, 2, 41, 2))
sketch1.addConstraint(Sketcher.Constraint("Horizontal", 8, 2, 43, 2))
sketch1.addConstraint(Sketcher.Constraint("Horizontal", 6, 2, 45, 2))
sketch1.addConstraint(Sketcher.Constraint("Horizontal", 4, 2, 47, 2))
sketch1.addConstraint(Sketcher.Constraint("Horizontal", 2, 2, 49, 2))
sketch1.addConstraint(Sketcher.Constraint("Horizontal", 0, 2, 51, 2))
sketch1.addConstraint(Sketcher.Constraint("Horizontal", 52, 2, 55, 2))
sketch1.addConstraint(Sketcher.Constraint("Horizontal", 54, 2, 57, 2))
sketch1.addConstraint(Sketcher.Constraint("Horizontal", 56, 2, 59, 2))
sketch1.addConstraint(Sketcher.Constraint("Horizontal", 58, 2, 61, 2))
sketch1.addConstraint(Sketcher.Constraint("Horizontal", 60, 2, 63, 2))
sketch1.addConstraint(Sketcher.Constraint("Horizontal", 62, 2, 65, 2))
sketch1.addConstraint(Sketcher.Constraint("Vertical", 69, 3, 71, 3))
sketch1.addConstraint(Sketcher.Constraint("Vertical", 74, 3, 75, 3))
sketch1.addConstraint(Sketcher.Constraint("Vertical", 71, 3, 76, 3))
sketch1.addConstraint(Sketcher.Constraint("Vertical", 76, 3, 77, 3))
sketch1.addConstraint(Sketcher.Constraint("Vertical", 68, 3, 78, 3))
sketch1.addConstraint(Sketcher.Constraint("Vertical", 70, 3, 79, 3))
sketch1.addConstraint(Sketcher.Constraint("Vertical", 75, 3, 81, 3))
sketch1.addConstraint(Sketcher.Constraint("Vertical", 72, 3, 82, 3))
sketch1.addConstraint(Sketcher.Constraint("Vertical", 81, 3, 83, 3))
sketch1.addConstraint(Sketcher.Constraint("Vertical", 73, 3, 84, 3))
sketch1.addConstraint(Sketcher.Constraint("Vertical", 1, 2, 4, 2))
sketch1.addConstraint(Sketcher.Constraint("Vertical", 3, 2, 6, 2))
sketch1.addConstraint(Sketcher.Constraint("Vertical", 5, 2, 8, 2))
sketch1.addConstraint(Sketcher.Constraint("Vertical", 7, 2, 10, 2))
sketch1.addConstraint(Sketcher.Constraint("Vertical", 9, 2, 12, 2))
sketch1.addConstraint(Sketcher.Constraint("Vertical", 11, 2, 14, 2))
sketch1.addConstraint(Sketcher.Constraint("Vertical", 13, 2, 16, 2))
sketch1.addConstraint(Sketcher.Constraint("Vertical", 35, 2, 38, 2))
sketch1.addConstraint(Sketcher.Constraint("Vertical", 37, 2, 40, 2))
sketch1.addConstraint(Sketcher.Constraint("Vertical", 39, 2, 42, 2))
sketch1.addConstraint(Sketcher.Constraint("Vertical", 41, 2, 44, 2))
sketch1.addConstraint(Sketcher.Constraint("Vertical", 43, 2, 46, 2))
sketch1.addConstraint(Sketcher.Constraint("Vertical", 45, 2, 48, 2))
sketch1.addConstraint(Sketcher.Constraint("Vertical", 47, 2, 50, 2))
sketch1.addConstraint(Sketcher.Constraint("Vertical", 33, 2, 52, 2))
sketch1.addConstraint(Sketcher.Constraint("Vertical", 31, 2, 54, 2))
sketch1.addConstraint(Sketcher.Constraint("Vertical", 29, 2, 56, 2))
sketch1.addConstraint(Sketcher.Constraint("Vertical", 27, 2, 58, 2))
sketch1.addConstraint(Sketcher.Constraint("Vertical", 25, 2, 60, 2))
sketch1.addConstraint(Sketcher.Constraint("Vertical", 23, 2, 62, 2))
sketch1.addConstraint(Sketcher.Constraint("Vertical", 21, 2, 64, 2))
sketch1.addConstraint(Sketcher.Constraint("Vertical", 19, 2, 66, 2))
sketch1.addConstraint(Sketcher.Constraint("Equal", 20, 24))
sketch1.addConstraint(Sketcher.Constraint("Equal", 22, 26))
sketch1.addConstraint(Sketcher.Constraint("Equal", 24, 28))
sketch1.addConstraint(Sketcher.Constraint("Equal", 26, 30))
sketch1.addConstraint(Sketcher.Constraint("Equal", 28, 32))
sketch1.addConstraint(Sketcher.Constraint("Equal", 18, 34))
sketch1.addConstraint(Sketcher.Constraint("Equal", 16, 36))
sketch1.addConstraint(Sketcher.Constraint("Equal", 66, 3))
sketch1.addConstraint(Sketcher.Constraint("Equal", 1, 5))
sketch1.addConstraint(Sketcher.Constraint("Equal", 3, 7))
sketch1.addConstraint(Sketcher.Constraint("Equal", 5, 9))
sketch1.addConstraint(Sketcher.Constraint("Equal", 7, 11))
sketch1.addConstraint(Sketcher.Constraint("Equal", 9, 13))
sketch1.addConstraint(Sketcher.Constraint("Equal", 11, 15))
sketch1.addConstraint(Sketcher.Constraint("Equal", 13, 17))
sketch1.addConstraint(Sketcher.Constraint("Equal", 50, 19))
sketch1.addConstraint(Sketcher.Constraint("Equal", 33, 53))
sketch1.addConstraint(Sketcher.Constraint("Diameter", 68, 3.0))
sketch1.addConstraint(Sketcher.Constraint("DistanceX", 0, 1, 0, 2, 40.0))
sketch1.addConstraint(Sketcher.Constraint("DistanceX", 2, 1, 2, 2, 5.0))
sketch1.addConstraint(Sketcher.Constraint("DistanceX", 20, 2, 20, 1, 30.0))
sketch1.addConstraint(Sketcher.Constraint("DistanceX", 22, 2, 22, 1, 50.0))
sketch1.addConstraint(Sketcher.Constraint("DistanceY", 1, 1, 1, 2, 32.000001))
sketch1.addConstraint(Sketcher.Constraint("DistanceX", -1, 1, 68, 3, 100.5097))
sketch1.addConstraint(Sketcher.Constraint("DistanceX", -1, 1, 69, 3, 158.0097))
sketch1.addConstraint(Sketcher.Constraint("DistanceX", -1, 1, 70, 3, 20.5097))
sketch1.addConstraint(Sketcher.Constraint("DistanceX", 72, 3, -1, 1, 59.4903))
sketch1.addConstraint(Sketcher.Constraint("DistanceX", 73, 3, -1, 1, 139.4903))
sketch1.addConstraint(Sketcher.Constraint("DistanceX", 74, 3, -1, 1, 196.9903))
sketch1.addConstraint(Sketcher.Constraint("DistanceX", -1, 1, 0, 2, 155.5097))
sketch1.addConstraint(Sketcher.Constraint("DistanceY", 71, 3, -1, 1, 54.878321))
sketch1.addConstraint(Sketcher.Constraint("DistanceY", -1, 1, 76, 3, 7.12168))
sketch1.addConstraint(Sketcher.Constraint("DistanceY", -1, 1, 77, 3, 69.121681))
sketch1.addConstraint(Sketcher.Constraint("DistanceY", 5, 2, -1, 1, 69.878321))
sketch1.addConstraint(Sketcher.Constraint("DistanceY", 68, 3, -1, 1, 166.378323))
sketch1.addConstraint(Sketcher.Constraint("DistanceY", 69, 3, -1, 1, 116.878322))
sketch1.addConstraint(Sketcher.Constraint("DistanceY", -1, 1, 78, 3, 118.621683))
pad1 = body.newObject("PartDesign::Pad", "Pad")
pad1.Profile = sketch1
pad1.Length = 5

doc.recompute()
